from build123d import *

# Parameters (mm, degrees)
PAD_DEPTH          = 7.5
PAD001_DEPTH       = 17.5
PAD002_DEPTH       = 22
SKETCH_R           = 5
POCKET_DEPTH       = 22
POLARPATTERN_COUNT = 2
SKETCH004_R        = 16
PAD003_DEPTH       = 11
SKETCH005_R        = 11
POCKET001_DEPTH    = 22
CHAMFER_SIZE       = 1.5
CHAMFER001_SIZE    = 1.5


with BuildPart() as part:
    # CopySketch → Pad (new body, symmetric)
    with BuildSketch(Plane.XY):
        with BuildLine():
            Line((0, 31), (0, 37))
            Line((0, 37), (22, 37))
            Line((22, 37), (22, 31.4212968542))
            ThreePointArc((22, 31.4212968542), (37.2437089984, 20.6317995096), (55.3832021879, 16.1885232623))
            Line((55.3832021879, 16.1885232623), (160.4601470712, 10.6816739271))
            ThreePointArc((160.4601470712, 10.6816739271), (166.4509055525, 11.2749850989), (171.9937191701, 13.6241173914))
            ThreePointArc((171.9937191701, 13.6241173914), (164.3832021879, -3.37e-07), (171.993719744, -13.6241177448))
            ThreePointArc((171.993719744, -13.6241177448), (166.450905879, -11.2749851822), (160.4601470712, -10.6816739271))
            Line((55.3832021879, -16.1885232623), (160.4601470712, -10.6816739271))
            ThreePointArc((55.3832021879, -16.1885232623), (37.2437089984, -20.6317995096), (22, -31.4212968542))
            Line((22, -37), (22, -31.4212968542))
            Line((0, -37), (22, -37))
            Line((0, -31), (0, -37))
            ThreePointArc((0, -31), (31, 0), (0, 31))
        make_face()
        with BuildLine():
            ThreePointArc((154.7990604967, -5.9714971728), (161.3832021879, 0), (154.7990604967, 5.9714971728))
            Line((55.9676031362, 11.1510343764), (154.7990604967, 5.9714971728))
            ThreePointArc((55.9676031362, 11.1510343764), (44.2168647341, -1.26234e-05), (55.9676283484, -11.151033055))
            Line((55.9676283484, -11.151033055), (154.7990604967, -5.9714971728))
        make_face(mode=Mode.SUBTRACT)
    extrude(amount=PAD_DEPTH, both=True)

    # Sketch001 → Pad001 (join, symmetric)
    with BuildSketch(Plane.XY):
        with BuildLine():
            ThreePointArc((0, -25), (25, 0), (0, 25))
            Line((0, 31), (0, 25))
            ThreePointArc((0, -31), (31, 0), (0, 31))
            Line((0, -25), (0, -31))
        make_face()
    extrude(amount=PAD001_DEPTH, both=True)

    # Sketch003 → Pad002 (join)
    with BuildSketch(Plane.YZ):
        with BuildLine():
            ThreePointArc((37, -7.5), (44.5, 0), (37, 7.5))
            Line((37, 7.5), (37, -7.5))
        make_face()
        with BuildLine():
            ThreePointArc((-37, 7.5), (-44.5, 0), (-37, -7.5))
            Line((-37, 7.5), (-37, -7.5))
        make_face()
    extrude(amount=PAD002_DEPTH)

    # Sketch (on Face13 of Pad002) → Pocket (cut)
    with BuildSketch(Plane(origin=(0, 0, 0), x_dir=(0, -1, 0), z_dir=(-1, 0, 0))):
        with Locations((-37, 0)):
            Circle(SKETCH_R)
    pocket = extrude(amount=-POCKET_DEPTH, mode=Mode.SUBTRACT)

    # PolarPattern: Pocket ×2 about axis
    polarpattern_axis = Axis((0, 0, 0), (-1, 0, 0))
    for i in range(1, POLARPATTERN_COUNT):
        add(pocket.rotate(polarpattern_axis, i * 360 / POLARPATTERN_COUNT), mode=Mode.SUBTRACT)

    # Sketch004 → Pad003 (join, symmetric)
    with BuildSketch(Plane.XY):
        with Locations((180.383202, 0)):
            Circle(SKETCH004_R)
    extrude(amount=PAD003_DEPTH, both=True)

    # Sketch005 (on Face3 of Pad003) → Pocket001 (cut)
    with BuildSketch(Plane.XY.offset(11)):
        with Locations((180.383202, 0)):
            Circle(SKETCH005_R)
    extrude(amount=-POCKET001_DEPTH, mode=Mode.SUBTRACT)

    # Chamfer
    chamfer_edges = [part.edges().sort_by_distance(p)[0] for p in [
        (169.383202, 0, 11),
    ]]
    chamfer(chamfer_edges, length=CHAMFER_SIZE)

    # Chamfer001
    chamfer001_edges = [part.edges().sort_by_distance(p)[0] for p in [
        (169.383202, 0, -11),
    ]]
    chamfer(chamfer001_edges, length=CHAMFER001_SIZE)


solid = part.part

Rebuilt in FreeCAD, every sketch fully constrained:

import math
import FreeCAD as App
import Part
import Sketcher
Q = App.Units.Quantity


def edges_at(feature, points):
    """Names of the edges that pass closest to the given points."""
    edges = feature.Shape.Edges
    near = lambda p: min(range(len(edges)), key=lambda i: edges[i].distToShape(Part.Vertex(*p))[0])
    return sorted({f"Edge{near(p) + 1}" for p in points})

doc = App.newDocument("Part")
body = doc.addObject("PartDesign::Body", "Body")

# Sketch on XY plane
sketch1 = body.newObject("Sketcher::SketchObject", "Sketch")
sketch1.AttachmentSupport = (doc.getObject("XY_Plane"), [""])
sketch1.MapMode = "FlatFace"
sketch1.addGeometry([
    Part.LineSegment(App.Vector(0, 37, 0), App.Vector(0, 31, 0)),  # 0
    Part.ArcOfCircle(Part.Circle(App.Vector(0, 0, 0), App.Vector(0, 0, 1), 31), math.radians(-90), math.radians(90)),  # 1
    Part.LineSegment(App.Vector(0, -31, 0), App.Vector(0, -37, 0)),  # 2
    Part.LineSegment(App.Vector(0, -37, 0), App.Vector(22, -37, 0)),  # 3
    Part.LineSegment(App.Vector(22, -37, 0), App.Vector(22, -31, 0)),  # 4
    Part.ArcOfCircle(Part.Circle(App.Vector(58, -66, 0), App.Vector(0, 0, 1), 50), math.radians(93), math.radians(136)),  # 5
    Part.LineSegment(App.Vector(55, -16, 0), App.Vector(160, -11, 0)),  # 6
    Part.ArcOfCircle(Part.Circle(App.Vector(162, -31, 0), App.Vector(0, 0, 1), 20), math.radians(58), math.radians(93)),  # 7
    Part.ArcOfCircle(Part.Circle(App.Vector(180, 0, 0), App.Vector(0, 0, 1), 16), math.radians(122), math.radians(238)),  # 8
    Part.ArcOfCircle(Part.Circle(App.Vector(162, 31, 0), App.Vector(0, 0, 1), 20), math.radians(-93), math.radians(-58)),  # 9
    Part.LineSegment(App.Vector(160, 11, 0), App.Vector(55, 16, 0)),  # 10
    Part.ArcOfCircle(Part.Circle(App.Vector(58, 66, 0), App.Vector(0, 0, 1), 50), math.radians(-136), math.radians(-93)),  # 11
    Part.LineSegment(App.Vector(22, 31, 0), App.Vector(22, 37, 0)),  # 12
    Part.LineSegment(App.Vector(22, 37, 0), App.Vector(0, 37, 0)),  # 13
    Part.LineSegment(App.Vector(155, -6, 0), App.Vector(56, -11, 0)),  # 14
    Part.ArcOfCircle(Part.Circle(App.Vector(55, 0, 0), App.Vector(0, 0, 1), 11), math.radians(87), math.radians(273)),  # 15
    Part.LineSegment(App.Vector(56, 11, 0), App.Vector(155, 6, 0)),  # 16
    Part.ArcOfCircle(Part.Circle(App.Vector(155, 0, 0), App.Vector(0, 0, 1), 6), math.radians(-96), math.radians(96)),  # 17
], False)
sketch1.addConstraint([
    Sketcher.Constraint("Coincident", 0, 2, 1, 2),
    Sketcher.Constraint("Coincident", 1, 1, 2, 1),
    Sketcher.Constraint("Coincident", 2, 2, 3, 1),
    Sketcher.Constraint("Coincident", 3, 2, 4, 1),
    Sketcher.Constraint("Coincident", 4, 2, 5, 2),
    Sketcher.Constraint("Tangent", 5, 1, 6, 1),
    Sketcher.Constraint("Tangent", 6, 2, 7, 2),
    Sketcher.Constraint("Tangent", 7, 1, 8, 2),
    Sketcher.Constraint("Tangent", 8, 1, 9, 2),
    Sketcher.Constraint("Tangent", 9, 1, 10, 1),
    Sketcher.Constraint("Tangent", 10, 2, 11, 2),
    Sketcher.Constraint("Coincident", 11, 1, 12, 1),
    Sketcher.Constraint("Coincident", 12, 2, 13, 1),
    Sketcher.Constraint("Coincident", 13, 2, 0, 1),
    Sketcher.Constraint("Coincident", 14, 2, 15, 2),
    Sketcher.Constraint("Tangent", 15, 1, 16, 1),
    Sketcher.Constraint("Coincident", 16, 2, 17, 2),
    Sketcher.Constraint("Coincident", 17, 1, 14, 1),
    Sketcher.Constraint("Vertical", 0),
    Sketcher.Constraint("Vertical", 2),
    Sketcher.Constraint("Horizontal", 3),
    Sketcher.Constraint("Vertical", 4),
    Sketcher.Constraint("Vertical", 12),
    Sketcher.Constraint("Horizontal", 13),
    Sketcher.Constraint("Coincident", 1, 3, -1, 1),
    Sketcher.Constraint("Equal", 7, 9),
    Sketcher.Constraint("Equal", 5, 11),
    Sketcher.Constraint("Symmetric", 2, 2, 13, 2, -1, 1),
    Sketcher.Constraint("Symmetric", 7, 3, 9, 3, -1),
    Sketcher.Constraint("Symmetric", 5, 3, 11, 3, -1),
    Sketcher.Constraint("Symmetric", 16, 2, 17, 1, -1),
    Sketcher.Constraint("PointOnObject", 15, 3, -1),
    Sketcher.Constraint("PointOnObject", 0, 2, -2),
    Sketcher.Constraint("Parallel", 6, 14),
    Sketcher.Constraint("Vertical", 15, 3, 5, 1),
    Sketcher.Constraint("Vertical", 4, 2, 11, 1),
    Sketcher.Constraint("Radius", 1, Q("31 mm")),
    Sketcher.Constraint("Radius", 5, Q("50 mm")),
    Sketcher.Constraint("Radius", 7, Q("20 mm")),
    Sketcher.Constraint("Radius", 8, Q("16 mm")),
    Sketcher.Constraint("Radius", 17, Q("6 mm")),
    Sketcher.Constraint("DistanceX", 3, 1, 3, 2, Q("22 mm")),
    Sketcher.Constraint("DistanceY", 0, 2, 0, 1, Q("6 mm")),
    Sketcher.Constraint("Angle", 6, Q("3 deg")),
    Sketcher.Constraint("DistanceX", -1, 1, 5, 3, Q("58 mm")),
    Sketcher.Constraint("DistanceX", 17, 3, 8, 3, Q("25 mm")),
    Sketcher.Constraint("DistanceX", 15, 3, 17, 3, Q("100 mm")),
    Sketcher.Constraint("DistanceY", 5, 3, -1, 1, Q("66.12 mm")),
    Sketcher.Constraint("Radius", 15, Q("11.166337 mm")),
    Sketcher.Constraint("DistanceX", -1, 1, 14, 2, Q("55.967628 mm")),
])
pad1 = body.newObject("PartDesign::Pad", "Pad")
pad1.Profile = sketch1
pad1.Length = 15
pad1.Midplane = True

# Sketch on XY plane
sketch2 = body.newObject("Sketcher::SketchObject", "Sketch001")
sketch2.AttachmentSupport = (doc.getObject("XY_Plane"), [""])
sketch2.MapMode = "FlatFace"
sketch2.addGeometry([
    Part.ArcOfCircle(Part.Circle(App.Vector(0, 0, 0), App.Vector(0, 0, 1), 25), math.radians(-90), math.radians(90)),
    Part.LineSegment(App.Vector(0, -25, 0), App.Vector(0, -31, 0)),
    Part.ArcOfCircle(Part.Circle(App.Vector(0, 0, 0), App.Vector(0, 0, 1), 31), math.radians(-90), math.radians(90)),
    Part.LineSegment(App.Vector(0, 31, 0), App.Vector(0, 25, 0)),
], False)
sketch2.addConstraint([
    Sketcher.Constraint("Coincident", 0, 1, 1, 1),
    Sketcher.Constraint("Coincident", 1, 2, 2, 1),
    Sketcher.Constraint("Coincident", 2, 2, 3, 1),
    Sketcher.Constraint("Coincident", 3, 2, 0, 2),
    Sketcher.Constraint("Vertical", 1),
    Sketcher.Constraint("Vertical", 3),
    Sketcher.Constraint("Coincident", 0, 3, -1, 1),
    Sketcher.Constraint("Coincident", 2, 3, -1, 1),
    Sketcher.Constraint("PointOnObject", 0, 1, -2),
    Sketcher.Constraint("PointOnObject", 2, 2, -2),
    Sketcher.Constraint("Radius", 0, Q("25 mm")),
    Sketcher.Constraint("Radius", 2, Q("31 mm")),
])
pad2 = body.newObject("PartDesign::Pad", "Pad001")
pad2.Profile = sketch2
pad2.Length = 35
pad2.Midplane = True

# Sketch on YZ plane
sketch3 = body.newObject("Sketcher::SketchObject", "Sketch002")
sketch3.AttachmentSupport = (doc.getObject("YZ_Plane"), [""])
sketch3.MapMode = "FlatFace"
sketch3.addGeometry([
    Part.ArcOfCircle(Part.Circle(App.Vector(37, 0, 0), App.Vector(0, 0, 1), 8), math.radians(-90), math.radians(90)),
    Part.LineSegment(App.Vector(37, 8, 0), App.Vector(37, -8, 0)),
    Part.ArcOfCircle(Part.Circle(App.Vector(-37, 0, 0), App.Vector(0, 0, 1), 8), math.radians(90), math.radians(270)),
    Part.LineSegment(App.Vector(-37, -8, 0), App.Vector(-37, 8, 0)),
], False)
sketch3.addConstraint([
    Sketcher.Constraint("Coincident", 0, 1, 1, 2),
    Sketcher.Constraint("Coincident", 1, 1, 0, 2),
    Sketcher.Constraint("Coincident", 2, 1, 3, 2),
    Sketcher.Constraint("Coincident", 3, 1, 2, 2),
    Sketcher.Constraint("Vertical", 1),
    Sketcher.Constraint("Vertical", 3),
    Sketcher.Constraint("Equal", 0, 2),
    Sketcher.Constraint("Symmetric", 0, 3, 2, 3, -1, 1),
    Sketcher.Constraint("Symmetric", 1, 1, 2, 1, -2),
    Sketcher.Constraint("Radius", 0, Q("7.5 mm")),
    Sketcher.Constraint("DistanceX", -1, 1, 0, 3, Q("37 mm")),
    Sketcher.Constraint("DistanceX", -1, 1, 0, 1, Q("37 mm")),
])
pad3 = body.newObject("PartDesign::Pad", "Pad002")
pad3.Profile = sketch3
pad3.Length = 22

# Sketch on YZ plane
sketch4 = body.newObject("Sketcher::SketchObject", "Sketch003")
sketch4.AttachmentSupport = (doc.getObject("YZ_Plane"), [""])
sketch4.MapMode = "FlatFace"
sketch4.addGeometry(Part.Circle(App.Vector(37, 0, 0), App.Vector(0, 0, 1), 5), False)
sketch4.addConstraint([
    Sketcher.Constraint("PointOnObject", 0, 3, -1),
    Sketcher.Constraint("Diameter", 0, Q("10 mm")),
    Sketcher.Constraint("DistanceX", -1, 1, 0, 3, Q("37 mm")),
])
pocket1 = body.newObject("PartDesign::Pocket", "Pocket")
pocket1.Profile = sketch4
pocket1.Length = 22
pocket1.Reversed = True
doc.recompute()

polarpattern = body.newObject("PartDesign::PolarPattern", "PolarPattern")
polarpattern.Originals = [pocket1]
polarpattern.Axis = (doc.getObject("X_Axis"), [""])
polarpattern.Angle = 360
polarpattern.Occurrences = 2
body.Tip = polarpattern

# Sketch on XY plane
sketch5 = body.newObject("Sketcher::SketchObject", "Sketch004")
sketch5.AttachmentSupport = (doc.getObject("XY_Plane"), [""])
sketch5.MapMode = "FlatFace"
sketch5.addGeometry(Part.Circle(App.Vector(180, 0, 0), App.Vector(0, 0, 1), 16), False)
sketch5.addConstraint([
    Sketcher.Constraint("PointOnObject", 0, 3, -1),
    Sketcher.Constraint("Diameter", 0, Q("32 mm")),
    Sketcher.Constraint("DistanceX", -1, 1, 0, 3, Q("180.383202 mm")),
])
pad4 = body.newObject("PartDesign::Pad", "Pad003")
pad4.Profile = sketch5
pad4.Length = 22
pad4.Midplane = True

# Sketch on XY plane
sketch6 = body.newObject("Sketcher::SketchObject", "Sketch005")
sketch6.AttachmentSupport = (doc.getObject("XY_Plane"), [""])
sketch6.MapMode = "FlatFace"
sketch6.AttachmentOffset = App.Placement(App.Vector(0, 0, 11), App.Rotation())
sketch6.addGeometry(Part.Circle(App.Vector(180, 0, 0), App.Vector(0, 0, 1), 11), False)
sketch6.addConstraint([
    Sketcher.Constraint("PointOnObject", 0, 3, -1),
    Sketcher.Constraint("Diameter", 0, Q("22 mm")),
    Sketcher.Constraint("DistanceX", -1, 1, 0, 3, Q("180.383202 mm")),
])
pocket2 = body.newObject("PartDesign::Pocket", "Pocket001")
pocket2.Profile = sketch6
pocket2.Length = 22
doc.recompute()

chamfer = body.newObject("PartDesign::Chamfer", "Chamfer")
chamfer.Base = (pocket2, edges_at(pocket2, [(169.383, 0, 11)]))
chamfer.Size = 1.5
doc.recompute()

chamfer2 = body.newObject("PartDesign::Chamfer", "Chamfer001")
chamfer2.Base = (chamfer, edges_at(chamfer, [(169.383, 0, -11)]))
chamfer2.Size = 1.5

doc.recompute()
